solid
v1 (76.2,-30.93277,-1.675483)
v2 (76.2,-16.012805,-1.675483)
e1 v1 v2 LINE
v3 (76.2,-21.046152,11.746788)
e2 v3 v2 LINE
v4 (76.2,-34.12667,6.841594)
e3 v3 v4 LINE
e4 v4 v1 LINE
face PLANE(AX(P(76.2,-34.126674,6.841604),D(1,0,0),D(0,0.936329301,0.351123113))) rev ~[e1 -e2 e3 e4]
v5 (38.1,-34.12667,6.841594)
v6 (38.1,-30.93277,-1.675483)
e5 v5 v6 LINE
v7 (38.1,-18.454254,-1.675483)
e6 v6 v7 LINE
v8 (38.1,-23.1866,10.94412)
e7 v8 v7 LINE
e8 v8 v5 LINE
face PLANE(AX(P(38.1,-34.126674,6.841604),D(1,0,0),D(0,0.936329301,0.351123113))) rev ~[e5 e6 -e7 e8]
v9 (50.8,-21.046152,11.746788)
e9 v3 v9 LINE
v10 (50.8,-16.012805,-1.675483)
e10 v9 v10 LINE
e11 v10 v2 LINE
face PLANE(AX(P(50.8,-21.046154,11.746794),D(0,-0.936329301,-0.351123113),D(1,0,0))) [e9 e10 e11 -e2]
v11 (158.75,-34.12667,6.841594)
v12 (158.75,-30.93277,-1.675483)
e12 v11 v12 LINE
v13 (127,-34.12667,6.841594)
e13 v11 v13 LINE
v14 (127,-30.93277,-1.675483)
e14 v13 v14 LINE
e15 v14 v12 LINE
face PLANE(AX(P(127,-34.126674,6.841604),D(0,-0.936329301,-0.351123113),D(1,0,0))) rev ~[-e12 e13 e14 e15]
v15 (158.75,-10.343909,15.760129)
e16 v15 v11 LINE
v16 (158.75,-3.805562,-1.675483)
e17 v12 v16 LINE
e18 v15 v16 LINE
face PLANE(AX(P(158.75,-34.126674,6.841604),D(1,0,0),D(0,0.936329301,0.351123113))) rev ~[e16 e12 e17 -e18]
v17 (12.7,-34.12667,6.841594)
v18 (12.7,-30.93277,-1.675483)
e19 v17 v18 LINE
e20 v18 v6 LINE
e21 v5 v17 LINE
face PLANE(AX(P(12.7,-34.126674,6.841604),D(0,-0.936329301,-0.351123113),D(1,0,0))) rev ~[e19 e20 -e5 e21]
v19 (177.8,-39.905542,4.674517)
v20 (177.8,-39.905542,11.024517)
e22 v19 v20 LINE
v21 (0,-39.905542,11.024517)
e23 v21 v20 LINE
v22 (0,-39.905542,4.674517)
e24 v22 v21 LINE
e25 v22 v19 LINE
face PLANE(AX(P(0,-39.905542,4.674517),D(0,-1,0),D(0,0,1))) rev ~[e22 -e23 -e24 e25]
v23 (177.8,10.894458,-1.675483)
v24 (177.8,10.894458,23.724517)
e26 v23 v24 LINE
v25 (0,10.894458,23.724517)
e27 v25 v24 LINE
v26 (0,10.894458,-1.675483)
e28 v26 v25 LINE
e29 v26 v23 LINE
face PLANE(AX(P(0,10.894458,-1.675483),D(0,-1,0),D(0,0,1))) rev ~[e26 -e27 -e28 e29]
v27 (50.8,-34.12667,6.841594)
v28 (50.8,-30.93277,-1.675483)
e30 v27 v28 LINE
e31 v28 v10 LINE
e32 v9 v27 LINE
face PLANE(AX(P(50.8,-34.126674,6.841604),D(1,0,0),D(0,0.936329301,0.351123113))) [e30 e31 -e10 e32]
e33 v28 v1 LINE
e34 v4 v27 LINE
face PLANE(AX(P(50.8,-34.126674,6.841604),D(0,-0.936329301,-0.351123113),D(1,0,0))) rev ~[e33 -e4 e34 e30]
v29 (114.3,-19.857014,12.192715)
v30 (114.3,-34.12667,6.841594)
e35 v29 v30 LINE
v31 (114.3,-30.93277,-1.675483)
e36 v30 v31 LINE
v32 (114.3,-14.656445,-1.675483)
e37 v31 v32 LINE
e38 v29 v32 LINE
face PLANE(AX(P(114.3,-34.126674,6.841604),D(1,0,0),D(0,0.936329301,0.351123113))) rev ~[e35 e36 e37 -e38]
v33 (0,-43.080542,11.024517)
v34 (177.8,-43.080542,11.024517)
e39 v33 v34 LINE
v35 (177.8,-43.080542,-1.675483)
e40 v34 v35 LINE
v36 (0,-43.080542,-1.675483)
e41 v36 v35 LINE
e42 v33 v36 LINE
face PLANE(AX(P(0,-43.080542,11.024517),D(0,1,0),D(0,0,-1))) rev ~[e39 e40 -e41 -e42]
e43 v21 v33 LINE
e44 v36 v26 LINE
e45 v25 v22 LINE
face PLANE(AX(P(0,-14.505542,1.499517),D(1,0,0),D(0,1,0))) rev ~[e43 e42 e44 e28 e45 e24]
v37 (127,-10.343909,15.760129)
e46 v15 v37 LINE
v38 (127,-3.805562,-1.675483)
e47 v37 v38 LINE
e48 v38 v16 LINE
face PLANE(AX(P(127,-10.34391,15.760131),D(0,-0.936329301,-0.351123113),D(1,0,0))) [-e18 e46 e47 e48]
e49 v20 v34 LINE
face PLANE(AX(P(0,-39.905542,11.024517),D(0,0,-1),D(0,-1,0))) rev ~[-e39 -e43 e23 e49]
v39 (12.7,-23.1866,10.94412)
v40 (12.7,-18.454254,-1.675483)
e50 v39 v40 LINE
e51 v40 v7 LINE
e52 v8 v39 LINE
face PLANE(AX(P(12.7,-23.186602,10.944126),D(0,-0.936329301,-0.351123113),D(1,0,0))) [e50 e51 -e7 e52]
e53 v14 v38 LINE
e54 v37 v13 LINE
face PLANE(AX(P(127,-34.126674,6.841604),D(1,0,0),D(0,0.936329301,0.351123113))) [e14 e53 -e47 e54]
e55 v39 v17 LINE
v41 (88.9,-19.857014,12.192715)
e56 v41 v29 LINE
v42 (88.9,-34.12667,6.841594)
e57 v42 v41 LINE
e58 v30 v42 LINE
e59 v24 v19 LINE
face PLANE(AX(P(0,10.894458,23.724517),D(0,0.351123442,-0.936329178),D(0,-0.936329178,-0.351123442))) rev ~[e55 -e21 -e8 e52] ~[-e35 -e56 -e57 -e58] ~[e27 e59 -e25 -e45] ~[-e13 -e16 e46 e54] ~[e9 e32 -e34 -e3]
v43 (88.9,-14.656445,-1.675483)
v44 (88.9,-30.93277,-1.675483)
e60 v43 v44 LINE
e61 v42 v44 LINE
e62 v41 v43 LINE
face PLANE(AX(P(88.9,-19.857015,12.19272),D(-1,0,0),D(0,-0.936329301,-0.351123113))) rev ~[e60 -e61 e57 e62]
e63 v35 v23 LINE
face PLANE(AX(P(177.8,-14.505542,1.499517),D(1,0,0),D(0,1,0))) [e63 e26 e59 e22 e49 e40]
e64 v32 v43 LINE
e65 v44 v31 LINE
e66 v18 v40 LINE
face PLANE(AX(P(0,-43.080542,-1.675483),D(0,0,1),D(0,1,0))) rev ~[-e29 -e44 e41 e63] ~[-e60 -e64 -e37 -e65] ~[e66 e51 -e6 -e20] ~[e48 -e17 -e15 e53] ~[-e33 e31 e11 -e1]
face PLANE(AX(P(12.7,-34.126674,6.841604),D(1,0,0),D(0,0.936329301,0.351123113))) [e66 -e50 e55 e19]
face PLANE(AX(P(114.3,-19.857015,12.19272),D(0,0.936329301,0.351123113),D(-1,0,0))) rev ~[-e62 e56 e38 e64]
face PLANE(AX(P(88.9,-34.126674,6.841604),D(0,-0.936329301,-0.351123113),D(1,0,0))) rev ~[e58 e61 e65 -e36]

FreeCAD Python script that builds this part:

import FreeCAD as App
import Part
import Sketcher
Q = App.Units.Quantity

doc = App.newDocument("Part")
params = doc.addObject("Spreadsheet::Sheet", "Params")
for row, (alias, value) in enumerate([
    ("sketch1_height", "1 in"),
    ("sketch1_height2", "0.5 in"),
    ("sketch1_height3", "0.25 in"),
    ("sketch1_width", "0.125 in"),
    ("pad1_length", "7 in"),
    ("sketch2_width", "1 in"),
    ("sketch2_height", "0.6 in"),
    ("sketch2_width2", "1.25 in"),
    ("sketch2_height2", "0.55 in"),
    ("sketch2_height3", "0.46 in"),
    ("pocket1_length", "1 in"),
], start=1):
    params.set(f"A{row}", alias)
    params.set(f"B{row}", "=" + value)
    params.setAlias(f"B{row}", alias)

body = doc.addObject("PartDesign::Body", "Body")

sketch1 = body.newObject("Sketcher::SketchObject", "Sketch")
sketch1.AttachmentSupport = (doc.getObject("YZ_Plane"), [""])
sketch1.MapMode = "FlatFace"
sketch1.addGeometry([
    Part.LineSegment(App.Vector(10.9, -1.7, 0), App.Vector(10.9, 23.7, 0)),
    Part.LineSegment(App.Vector(10.9, 23.7, 0), App.Vector(-39.9, 4.7, 0)),
    Part.LineSegment(App.Vector(-39.9, 4.7, 0), App.Vector(-39.9, 11, 0)),
    Part.LineSegment(App.Vector(-39.9, 11, 0), App.Vector(-43.1, 11, 0)),
    Part.LineSegment(App.Vector(-43.1, 11, 0), App.Vector(-43.1, -1.7, 0)),
    Part.LineSegment(App.Vector(-43.1, -1.7, 0), App.Vector(10.9, -1.7, 0)),
], False)
sketch1.addConstraint([
    Sketcher.Constraint("Coincident", 0, 2, 1, 1),
    Sketcher.Constraint("Coincident", 1, 2, 2, 1),
    Sketcher.Constraint("Coincident", 2, 2, 3, 1),
    Sketcher.Constraint("Coincident", 3, 2, 4, 1),
    Sketcher.Constraint("Coincident", 4, 2, 5, 1),
    Sketcher.Constraint("Coincident", 5, 2, 0, 1),
    Sketcher.Constraint("Vertical", 0),
    Sketcher.Constraint("Vertical", 2),
    Sketcher.Constraint("Horizontal", 3),
    Sketcher.Constraint("Vertical", 4),
    Sketcher.Constraint("Horizontal", 5),
    Sketcher.Constraint("DistanceY", 0, 1, 0, 2, Q("1 in")),
    Sketcher.Constraint("DistanceY", 4, 2, 4, 1, Q("0.5 in")),
    Sketcher.Constraint("DistanceX", 1, 2, 0, 2, Q("2 in")),
    Sketcher.Constraint("DistanceY", 2, 1, 2, 2, Q("0.25 in")),
    Sketcher.Constraint("DistanceX", 3, 2, 3, 1, Q("0.125 in")),
    Sketcher.Constraint("DistanceX", 1, 2, -1, 1, Q("39.905542 mm")),
    Sketcher.Constraint("DistanceY", -1, 1, 0, 2, Q("23.724517 mm")),
])
sketch1.setExpression("Constraints[11]", "Params.sketch1_height")
sketch1.setExpression("Constraints[12]", "Params.sketch1_height2")
sketch1.setExpression("Constraints[14]", "Params.sketch1_height3")
sketch1.setExpression("Constraints[15]", "Params.sketch1_width")
pad1 = body.newObject("PartDesign::Pad", "Pad")
pad1.Profile = sketch1
pad1.setExpression("Length", "Params.pad1_length")

sketch2 = body.newObject("Sketcher::SketchObject", "Sketch001")
sketch2.Placement = App.Placement(App.Vector(0, -6.456689, 17.217837), App.Rotation(App.Vector(1, 0, 0), App.Vector(0, 0.936329301, 0.351123113), App.Vector(0, -0.351123113, 0.936329301), "ZXY"))
sketch2.addGeometry([
    Part.LineSegment(App.Vector(114, -30, 0), App.Vector(114, -14, 0)),
    Part.LineSegment(App.Vector(114, -14, 0), App.Vector(89, -14, 0)),
    Part.LineSegment(App.Vector(89, -14, 0), App.Vector(89, -30, 0)),
    Part.LineSegment(App.Vector(89, -30, 0), App.Vector(114, -30, 0)),
    Part.LineSegment(App.Vector(51, -16, 0), App.Vector(51, -30, 0)),
    Part.LineSegment(App.Vector(51, -30, 0), App.Vector(76, -30, 0)),
    Part.LineSegment(App.Vector(76, -30, 0), App.Vector(76, -16, 0)),
    Part.LineSegment(App.Vector(76, -16, 0), App.Vector(51, -16, 0)),
    Part.LineSegment(App.Vector(13, -18, 0), App.Vector(13, -30, 0)),
    Part.LineSegment(App.Vector(13, -30, 0), App.Vector(38, -30, 0)),
    Part.LineSegment(App.Vector(38, -30, 0), App.Vector(38, -18, 0)),
    Part.LineSegment(App.Vector(38, -18, 0), App.Vector(13, -18, 0)),
    Part.LineSegment(App.Vector(127, -4, 0), App.Vector(127, -30, 0)),
    Part.LineSegment(App.Vector(127, -30, 0), App.Vector(159, -30, 0)),
    Part.LineSegment(App.Vector(159, -30, 0), App.Vector(159, -4, 0)),
    Part.LineSegment(App.Vector(159, -4, 0), App.Vector(127, -4, 0)),
], False)
sketch2.addConstraint([
    Sketcher.Constraint("Coincident", 0, 2, 1, 1),
    Sketcher.Constraint("Coincident", 1, 2, 2, 1),
    Sketcher.Constraint("Coincident", 2, 2, 3, 1),
    Sketcher.Constraint("Coincident", 3, 2, 0, 1),
    Sketcher.Constraint("Coincident", 4, 2, 5, 1),
    Sketcher.Constraint("Coincident", 5, 2, 6, 1),
    Sketcher.Constraint("Coincident", 6, 2, 7, 1),
    Sketcher.Constraint("Coincident", 7, 2, 4, 1),
    Sketcher.Constraint("Coincident", 8, 2, 9, 1),
    Sketcher.Constraint("Coincident", 9, 2, 10, 1),
    Sketcher.Constraint("Coincident", 10, 2, 11, 1),
    Sketcher.Constraint("Coincident", 11, 2, 8, 1),
    Sketcher.Constraint("Coincident", 12, 2, 13, 1),
    Sketcher.Constraint("Coincident", 13, 2, 14, 1),
    Sketcher.Constraint("Coincident", 14, 2, 15, 1),
    Sketcher.Constraint("Coincident", 15, 2, 12, 1),
    Sketcher.Constraint("Vertical", 0),
    Sketcher.Constraint("Horizontal", 1),
    Sketcher.Constraint("Vertical", 2),
    Sketcher.Constraint("Horizontal", 3),
    Sketcher.Constraint("Vertical", 4),
    Sketcher.Constraint("Horizontal", 5),
    Sketcher.Constraint("Vertical", 6),
    Sketcher.Constraint("Horizontal", 7),
    Sketcher.Constraint("Vertical", 8),
    Sketcher.Constraint("Horizontal", 9),
    Sketcher.Constraint("Vertical", 10),
    Sketcher.Constraint("Horizontal", 11),
    Sketcher.Constraint("Vertical", 12),
    Sketcher.Constraint("Horizontal", 13),
    Sketcher.Constraint("Vertical", 14),
    Sketcher.Constraint("Horizontal", 15),
    Sketcher.Constraint("Horizontal", 3, 2, 4, 2),
    Sketcher.Constraint("Horizontal", 5, 2, 8, 2),
    Sketcher.Constraint("Horizontal", 9, 2, 12, 2),
    Sketcher.Constraint("Equal", 3, 5),
    Sketcher.Constraint("Equal", 7, 9),
    Sketcher.Constraint("Equal", 11, 12),
    Sketcher.Constraint("DistanceX", 1, 2, 1, 1, Q("1 in")),
    Sketcher.Constraint("DistanceY", 0, 1, 0, 2, Q("0.6 in")),
    Sketcher.Constraint("DistanceX", -1, 1, 4, 2, Q("2 in")),
    Sketcher.Constraint("DistanceX", -1, 1, 12, 2, Q("5 in")),
    Sketcher.Constraint("DistanceX", 8, 2, 2, 2, Q("3 in")),
    Sketcher.Constraint("DistanceX", 13, 1, 13, 2, Q("1.25 in")),
    Sketcher.Constraint("DistanceY", 4, 2, 4, 1, Q("0.55 in")),
    Sketcher.Constraint("DistanceY", 8, 2, 8, 1, Q("0.46 in")),
    Sketcher.Constraint("DistanceX", -1, 1, 0, 2, Q("4.5 in")),
    Sketcher.Constraint("DistanceY", 0, 2, -1, 1, Q("14.311553 mm")),
])
sketch2.setExpression("Constraints[38]", "Params.sketch2_width")
sketch2.setExpression("Constraints[39]", "Params.sketch2_height")
sketch2.setExpression("Constraints[43]", "Params.sketch2_width2")
sketch2.setExpression("Constraints[44]", "Params.sketch2_height2")
sketch2.setExpression("Constraints[45]", "Params.sketch2_height3")
pocket1 = body.newObject("PartDesign::Pocket", "Pocket")
pocket1.Profile = sketch2
pocket1.setExpression("Length", "Params.pocket1_length")

doc.recompute()
